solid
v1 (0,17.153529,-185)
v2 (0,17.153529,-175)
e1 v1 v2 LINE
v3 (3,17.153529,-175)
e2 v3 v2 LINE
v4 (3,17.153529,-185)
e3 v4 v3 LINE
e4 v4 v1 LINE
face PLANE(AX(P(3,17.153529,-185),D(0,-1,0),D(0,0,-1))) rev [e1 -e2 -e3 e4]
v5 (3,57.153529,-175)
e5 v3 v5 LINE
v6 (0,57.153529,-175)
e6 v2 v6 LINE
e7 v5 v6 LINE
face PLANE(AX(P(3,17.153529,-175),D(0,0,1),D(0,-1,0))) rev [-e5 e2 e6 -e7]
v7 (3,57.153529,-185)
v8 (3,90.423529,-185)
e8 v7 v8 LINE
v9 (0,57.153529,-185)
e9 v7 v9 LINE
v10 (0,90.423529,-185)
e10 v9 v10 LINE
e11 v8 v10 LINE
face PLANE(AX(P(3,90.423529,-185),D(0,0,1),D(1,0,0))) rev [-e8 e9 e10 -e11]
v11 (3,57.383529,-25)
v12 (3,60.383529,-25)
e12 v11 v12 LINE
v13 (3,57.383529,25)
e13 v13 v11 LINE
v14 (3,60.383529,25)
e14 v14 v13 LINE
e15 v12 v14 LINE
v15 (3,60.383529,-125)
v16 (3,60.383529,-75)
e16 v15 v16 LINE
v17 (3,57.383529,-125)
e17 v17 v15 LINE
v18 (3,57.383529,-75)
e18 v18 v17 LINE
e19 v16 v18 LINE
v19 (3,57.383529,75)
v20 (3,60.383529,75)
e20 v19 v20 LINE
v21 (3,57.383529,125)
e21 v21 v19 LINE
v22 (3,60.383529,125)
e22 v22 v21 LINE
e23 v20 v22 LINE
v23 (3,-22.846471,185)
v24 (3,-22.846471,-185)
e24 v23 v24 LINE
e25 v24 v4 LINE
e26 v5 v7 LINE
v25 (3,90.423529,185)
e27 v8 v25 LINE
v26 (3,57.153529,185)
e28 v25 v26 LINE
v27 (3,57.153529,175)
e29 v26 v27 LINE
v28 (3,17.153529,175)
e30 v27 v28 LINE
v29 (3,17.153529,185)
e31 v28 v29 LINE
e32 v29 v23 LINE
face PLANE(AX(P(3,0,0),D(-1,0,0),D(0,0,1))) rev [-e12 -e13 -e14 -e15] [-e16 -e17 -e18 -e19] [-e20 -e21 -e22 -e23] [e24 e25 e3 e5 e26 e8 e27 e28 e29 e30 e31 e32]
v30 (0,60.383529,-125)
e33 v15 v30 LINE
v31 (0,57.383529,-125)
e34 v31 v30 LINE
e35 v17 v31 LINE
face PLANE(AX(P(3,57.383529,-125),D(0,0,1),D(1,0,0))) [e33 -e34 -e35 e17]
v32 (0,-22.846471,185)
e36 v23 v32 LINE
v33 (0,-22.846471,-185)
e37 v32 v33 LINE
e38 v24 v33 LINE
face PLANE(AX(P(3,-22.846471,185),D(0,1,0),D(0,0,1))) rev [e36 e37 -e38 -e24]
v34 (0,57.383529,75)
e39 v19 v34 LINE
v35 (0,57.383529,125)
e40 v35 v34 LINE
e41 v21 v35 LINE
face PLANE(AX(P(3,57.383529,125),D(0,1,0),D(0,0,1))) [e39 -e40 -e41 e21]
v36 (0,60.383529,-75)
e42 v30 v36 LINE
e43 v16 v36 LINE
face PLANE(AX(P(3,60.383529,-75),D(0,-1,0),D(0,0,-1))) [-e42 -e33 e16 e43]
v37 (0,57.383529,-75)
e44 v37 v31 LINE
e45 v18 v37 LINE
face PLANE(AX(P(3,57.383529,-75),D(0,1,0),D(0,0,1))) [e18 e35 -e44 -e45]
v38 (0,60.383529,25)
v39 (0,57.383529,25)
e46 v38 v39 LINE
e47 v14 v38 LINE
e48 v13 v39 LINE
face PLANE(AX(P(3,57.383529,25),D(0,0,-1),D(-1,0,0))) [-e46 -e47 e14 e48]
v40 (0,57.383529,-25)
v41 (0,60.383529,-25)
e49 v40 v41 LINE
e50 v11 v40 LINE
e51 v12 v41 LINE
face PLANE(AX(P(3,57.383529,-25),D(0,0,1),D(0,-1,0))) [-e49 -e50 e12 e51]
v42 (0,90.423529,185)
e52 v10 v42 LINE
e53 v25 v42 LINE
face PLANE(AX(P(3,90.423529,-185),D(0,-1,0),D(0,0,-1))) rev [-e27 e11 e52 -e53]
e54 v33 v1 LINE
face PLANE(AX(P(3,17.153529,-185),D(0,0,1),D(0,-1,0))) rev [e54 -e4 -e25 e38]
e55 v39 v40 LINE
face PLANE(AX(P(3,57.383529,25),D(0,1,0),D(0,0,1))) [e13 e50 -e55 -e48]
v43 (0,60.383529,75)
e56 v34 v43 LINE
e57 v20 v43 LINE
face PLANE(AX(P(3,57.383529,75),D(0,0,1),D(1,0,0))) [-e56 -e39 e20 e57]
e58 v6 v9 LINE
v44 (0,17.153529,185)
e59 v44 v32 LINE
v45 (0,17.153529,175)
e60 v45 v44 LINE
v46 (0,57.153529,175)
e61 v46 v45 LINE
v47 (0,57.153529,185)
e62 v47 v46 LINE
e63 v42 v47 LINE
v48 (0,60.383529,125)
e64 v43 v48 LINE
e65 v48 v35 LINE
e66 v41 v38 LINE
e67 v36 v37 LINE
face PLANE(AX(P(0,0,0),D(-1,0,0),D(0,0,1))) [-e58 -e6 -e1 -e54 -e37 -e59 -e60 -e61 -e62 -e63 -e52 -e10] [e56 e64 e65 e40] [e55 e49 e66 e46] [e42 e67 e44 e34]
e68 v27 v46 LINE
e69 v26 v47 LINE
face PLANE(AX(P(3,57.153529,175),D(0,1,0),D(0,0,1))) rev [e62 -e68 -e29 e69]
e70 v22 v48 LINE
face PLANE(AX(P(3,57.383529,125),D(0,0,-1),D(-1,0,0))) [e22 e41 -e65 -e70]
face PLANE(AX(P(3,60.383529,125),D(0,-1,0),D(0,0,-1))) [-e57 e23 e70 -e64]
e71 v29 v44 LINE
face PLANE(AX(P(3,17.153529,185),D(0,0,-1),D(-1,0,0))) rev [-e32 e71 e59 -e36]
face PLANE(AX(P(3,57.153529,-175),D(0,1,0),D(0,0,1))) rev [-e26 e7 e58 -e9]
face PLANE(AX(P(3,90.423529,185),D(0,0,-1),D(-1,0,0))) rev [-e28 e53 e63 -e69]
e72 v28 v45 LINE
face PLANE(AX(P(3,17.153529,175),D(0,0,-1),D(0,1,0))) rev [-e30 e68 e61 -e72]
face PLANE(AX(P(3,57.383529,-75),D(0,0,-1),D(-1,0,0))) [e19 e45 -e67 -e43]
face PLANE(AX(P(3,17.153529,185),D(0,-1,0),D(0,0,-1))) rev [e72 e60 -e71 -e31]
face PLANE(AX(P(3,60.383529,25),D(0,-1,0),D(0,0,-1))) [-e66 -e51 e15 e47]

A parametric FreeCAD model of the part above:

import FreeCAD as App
import Part
import Sketcher
from FreeCAD import Vector
Q = App.Units.Quantity

doc = App.newDocument("Part")
body = doc.addObject("PartDesign::Body", "Body")

# Sketch on YZ plane
sketch1 = doc.addObject("Sketcher::SketchObject", "Sketch")
body.addObject(sketch1)
sketch1.AttachmentSupport = (doc.YZ_Plane, [""])
sketch1.MapMode = "FlatFace"
sketch1.addGeometry([
    Part.LineSegment(Vector(90.423529, -185, 0), Vector(90.423529, 185, 0)),  # 0
    Part.LineSegment(Vector(90.423529, 185, 0), Vector(57.153529, 185, 0)),  # 1
    Part.LineSegment(Vector(57.153529, 185, 0), Vector(57.153529, 175, 0)),  # 2
    Part.LineSegment(Vector(57.153529, 175, 0), Vector(17.153529, 175, 0)),  # 3
    Part.LineSegment(Vector(17.153529, 175, 0), Vector(17.153529, 185, 0)),  # 4
    Part.LineSegment(Vector(17.153529, 185, 0), Vector(-22.846471, 185, 0)),  # 5
    Part.LineSegment(Vector(-22.846471, 185, 0), Vector(-22.846471, -185, 0)),  # 6
    Part.LineSegment(Vector(-22.846471, -185, 0), Vector(17.153529, -185, 0)),  # 7
    Part.LineSegment(Vector(17.153529, -185, 0), Vector(17.153529, -175, 0)),  # 8
    Part.LineSegment(Vector(17.153529, -175, 0), Vector(57.153529, -175, 0)),  # 9
    Part.LineSegment(Vector(57.153529, -175, 0), Vector(57.153529, -185, 0)),  # 10
    Part.LineSegment(Vector(57.153529, -185, 0), Vector(90.423529, -185, 0)),  # 11
    Part.LineSegment(Vector(57.383529, 75, 0), Vector(57.383529, 125, 0)),  # 12
    Part.LineSegment(Vector(57.383529, 125, 0), Vector(60.383529, 125, 0)),  # 13
    Part.LineSegment(Vector(60.383529, 125, 0), Vector(60.383529, 75, 0)),  # 14
    Part.LineSegment(Vector(60.383529, 75, 0), Vector(57.383529, 75, 0)),  # 15
    Part.LineSegment(Vector(57.383529, -25, 0), Vector(57.383529, 25, 0)),  # 16
    Part.LineSegment(Vector(57.383529, 25, 0), Vector(60.383529, 25, 0)),  # 17
    Part.LineSegment(Vector(60.383529, 25, 0), Vector(60.383529, -25, 0)),  # 18
    Part.LineSegment(Vector(60.383529, -25, 0), Vector(57.383529, -25, 0)),  # 19
    Part.LineSegment(Vector(57.383529, -125, 0), Vector(57.383529, -75, 0)),  # 20
    Part.LineSegment(Vector(57.383529, -75, 0), Vector(60.383529, -75, 0)),  # 21
    Part.LineSegment(Vector(60.383529, -75, 0), Vector(60.383529, -125, 0)),  # 22
    Part.LineSegment(Vector(60.383529, -125, 0), Vector(57.383529, -125, 0)),  # 23
], False)
sketch1.addConstraint([
    Sketcher.Constraint("Coincident", 0, 2, 1, 1),
    Sketcher.Constraint("Coincident", 1, 2, 2, 1),
    Sketcher.Constraint("Coincident", 2, 2, 3, 1),
    Sketcher.Constraint("Coincident", 3, 2, 4, 1),
    Sketcher.Constraint("Coincident", 4, 2, 5, 1),
    Sketcher.Constraint("Coincident", 5, 2, 6, 1),
    Sketcher.Constraint("Coincident", 6, 2, 7, 1),
    Sketcher.Constraint("Coincident", 7, 2, 8, 1),
    Sketcher.Constraint("Coincident", 8, 2, 9, 1),
    Sketcher.Constraint("Coincident", 9, 2, 10, 1),
    Sketcher.Constraint("Coincident", 10, 2, 11, 1),
    Sketcher.Constraint("Coincident", 11, 2, 0, 1),
    Sketcher.Constraint("Coincident", 12, 2, 13, 1),
    Sketcher.Constraint("Coincident", 13, 2, 14, 1),
    Sketcher.Constraint("Coincident", 14, 2, 15, 1),
    Sketcher.Constraint("Coincident", 15, 2, 12, 1),
    Sketcher.Constraint("Coincident", 16, 2, 17, 1),
    Sketcher.Constraint("Coincident", 17, 2, 18, 1),
    Sketcher.Constraint("Coincident", 18, 2, 19, 1),
    Sketcher.Constraint("Coincident", 19, 2, 16, 1),
    Sketcher.Constraint("Coincident", 20, 2, 21, 1),
    Sketcher.Constraint("Coincident", 21, 2, 22, 1),
    Sketcher.Constraint("Coincident", 22, 2, 23, 1),
    Sketcher.Constraint("Coincident", 23, 2, 20, 1),
    Sketcher.Constraint("Vertical", 0),
    Sketcher.Constraint("Horizontal", 1),
    Sketcher.Constraint("Vertical", 2),
    Sketcher.Constraint("Horizontal", 3),
    Sketcher.Constraint("Vertical", 4),
    Sketcher.Constraint("Horizontal", 5),
    Sketcher.Constraint("Vertical", 6),
    Sketcher.Constraint("Horizontal", 7),
    Sketcher.Constraint("Vertical", 8),
    Sketcher.Constraint("Horizontal", 9),
    Sketcher.Constraint("Vertical", 10),
    Sketcher.Constraint("Horizontal", 11),
    Sketcher.Constraint("Vertical", 12),
    Sketcher.Constraint("Horizontal", 13),
    Sketcher.Constraint("Vertical", 14),
    Sketcher.Constraint("Horizontal", 15),
    Sketcher.Constraint("Vertical", 16),
    Sketcher.Constraint("Horizontal", 17),
    Sketcher.Constraint("Vertical", 18),
    Sketcher.Constraint("Horizontal", 19),
    Sketcher.Constraint("Vertical", 20),
    Sketcher.Constraint("Horizontal", 21),
    Sketcher.Constraint("Vertical", 22),
    Sketcher.Constraint("Horizontal", 23),
    Sketcher.Constraint("Symmetric", 4, 2, 7, 2, -1),
    Sketcher.Constraint("Symmetric", 2, 2, 9, 2, -1),
    Sketcher.Constraint("Symmetric", 15, 2, 20, 2, -1),
    Sketcher.Constraint("Symmetric", 13, 2, 22, 2, -1),
    Sketcher.Constraint("Horizontal", 1, 2, 4, 2),
    Sketcher.Constraint("Horizontal", 7, 2, 10, 2),
    Sketcher.Constraint("Vertical", 15, 2, 16, 2),
    Sketcher.Constraint("Vertical", 14, 2, 17, 2),
    Sketcher.Constraint("Equal", 3, 5),
    Sketcher.Constraint("Equal", 14, 16),
    Sketcher.Constraint("DistanceX", 3, 2, 3, 1, Q("40 mm")),
    Sketcher.Constraint("DistanceX", 13, 1, 13, 2, Q("3 mm")),
    Sketcher.Constraint("DistanceY", 0, 1, 0, 2, Q("370 mm")),
    Sketcher.Constraint("DistanceY", 2, 2, 2, 1, Q("10 mm")),
    Sketcher.Constraint("DistanceY", 12, 1, 12, 2, Q("50 mm")),
    Sketcher.Constraint("DistanceY", -1, 1, 12, 2, Q("125 mm")),
    Sketcher.Constraint("DistanceY", -1, 1, 16, 2, Q("25 mm")),
    Sketcher.Constraint("DistanceX", 1, 2, 1, 1, Q("33.27 mm")),
    Sketcher.Constraint("DistanceX", 2, 2, 12, 2, Q("0.23 mm")),
    Sketcher.Constraint("DistanceX", -1, 1, 0, 2, Q("90.423529 mm")),
])
pad1 = doc.addObject("PartDesign::Pad", "Pad")
body.addObject(pad1)
pad1.Profile = sketch1
pad1.Length = 3

doc.recompute()
